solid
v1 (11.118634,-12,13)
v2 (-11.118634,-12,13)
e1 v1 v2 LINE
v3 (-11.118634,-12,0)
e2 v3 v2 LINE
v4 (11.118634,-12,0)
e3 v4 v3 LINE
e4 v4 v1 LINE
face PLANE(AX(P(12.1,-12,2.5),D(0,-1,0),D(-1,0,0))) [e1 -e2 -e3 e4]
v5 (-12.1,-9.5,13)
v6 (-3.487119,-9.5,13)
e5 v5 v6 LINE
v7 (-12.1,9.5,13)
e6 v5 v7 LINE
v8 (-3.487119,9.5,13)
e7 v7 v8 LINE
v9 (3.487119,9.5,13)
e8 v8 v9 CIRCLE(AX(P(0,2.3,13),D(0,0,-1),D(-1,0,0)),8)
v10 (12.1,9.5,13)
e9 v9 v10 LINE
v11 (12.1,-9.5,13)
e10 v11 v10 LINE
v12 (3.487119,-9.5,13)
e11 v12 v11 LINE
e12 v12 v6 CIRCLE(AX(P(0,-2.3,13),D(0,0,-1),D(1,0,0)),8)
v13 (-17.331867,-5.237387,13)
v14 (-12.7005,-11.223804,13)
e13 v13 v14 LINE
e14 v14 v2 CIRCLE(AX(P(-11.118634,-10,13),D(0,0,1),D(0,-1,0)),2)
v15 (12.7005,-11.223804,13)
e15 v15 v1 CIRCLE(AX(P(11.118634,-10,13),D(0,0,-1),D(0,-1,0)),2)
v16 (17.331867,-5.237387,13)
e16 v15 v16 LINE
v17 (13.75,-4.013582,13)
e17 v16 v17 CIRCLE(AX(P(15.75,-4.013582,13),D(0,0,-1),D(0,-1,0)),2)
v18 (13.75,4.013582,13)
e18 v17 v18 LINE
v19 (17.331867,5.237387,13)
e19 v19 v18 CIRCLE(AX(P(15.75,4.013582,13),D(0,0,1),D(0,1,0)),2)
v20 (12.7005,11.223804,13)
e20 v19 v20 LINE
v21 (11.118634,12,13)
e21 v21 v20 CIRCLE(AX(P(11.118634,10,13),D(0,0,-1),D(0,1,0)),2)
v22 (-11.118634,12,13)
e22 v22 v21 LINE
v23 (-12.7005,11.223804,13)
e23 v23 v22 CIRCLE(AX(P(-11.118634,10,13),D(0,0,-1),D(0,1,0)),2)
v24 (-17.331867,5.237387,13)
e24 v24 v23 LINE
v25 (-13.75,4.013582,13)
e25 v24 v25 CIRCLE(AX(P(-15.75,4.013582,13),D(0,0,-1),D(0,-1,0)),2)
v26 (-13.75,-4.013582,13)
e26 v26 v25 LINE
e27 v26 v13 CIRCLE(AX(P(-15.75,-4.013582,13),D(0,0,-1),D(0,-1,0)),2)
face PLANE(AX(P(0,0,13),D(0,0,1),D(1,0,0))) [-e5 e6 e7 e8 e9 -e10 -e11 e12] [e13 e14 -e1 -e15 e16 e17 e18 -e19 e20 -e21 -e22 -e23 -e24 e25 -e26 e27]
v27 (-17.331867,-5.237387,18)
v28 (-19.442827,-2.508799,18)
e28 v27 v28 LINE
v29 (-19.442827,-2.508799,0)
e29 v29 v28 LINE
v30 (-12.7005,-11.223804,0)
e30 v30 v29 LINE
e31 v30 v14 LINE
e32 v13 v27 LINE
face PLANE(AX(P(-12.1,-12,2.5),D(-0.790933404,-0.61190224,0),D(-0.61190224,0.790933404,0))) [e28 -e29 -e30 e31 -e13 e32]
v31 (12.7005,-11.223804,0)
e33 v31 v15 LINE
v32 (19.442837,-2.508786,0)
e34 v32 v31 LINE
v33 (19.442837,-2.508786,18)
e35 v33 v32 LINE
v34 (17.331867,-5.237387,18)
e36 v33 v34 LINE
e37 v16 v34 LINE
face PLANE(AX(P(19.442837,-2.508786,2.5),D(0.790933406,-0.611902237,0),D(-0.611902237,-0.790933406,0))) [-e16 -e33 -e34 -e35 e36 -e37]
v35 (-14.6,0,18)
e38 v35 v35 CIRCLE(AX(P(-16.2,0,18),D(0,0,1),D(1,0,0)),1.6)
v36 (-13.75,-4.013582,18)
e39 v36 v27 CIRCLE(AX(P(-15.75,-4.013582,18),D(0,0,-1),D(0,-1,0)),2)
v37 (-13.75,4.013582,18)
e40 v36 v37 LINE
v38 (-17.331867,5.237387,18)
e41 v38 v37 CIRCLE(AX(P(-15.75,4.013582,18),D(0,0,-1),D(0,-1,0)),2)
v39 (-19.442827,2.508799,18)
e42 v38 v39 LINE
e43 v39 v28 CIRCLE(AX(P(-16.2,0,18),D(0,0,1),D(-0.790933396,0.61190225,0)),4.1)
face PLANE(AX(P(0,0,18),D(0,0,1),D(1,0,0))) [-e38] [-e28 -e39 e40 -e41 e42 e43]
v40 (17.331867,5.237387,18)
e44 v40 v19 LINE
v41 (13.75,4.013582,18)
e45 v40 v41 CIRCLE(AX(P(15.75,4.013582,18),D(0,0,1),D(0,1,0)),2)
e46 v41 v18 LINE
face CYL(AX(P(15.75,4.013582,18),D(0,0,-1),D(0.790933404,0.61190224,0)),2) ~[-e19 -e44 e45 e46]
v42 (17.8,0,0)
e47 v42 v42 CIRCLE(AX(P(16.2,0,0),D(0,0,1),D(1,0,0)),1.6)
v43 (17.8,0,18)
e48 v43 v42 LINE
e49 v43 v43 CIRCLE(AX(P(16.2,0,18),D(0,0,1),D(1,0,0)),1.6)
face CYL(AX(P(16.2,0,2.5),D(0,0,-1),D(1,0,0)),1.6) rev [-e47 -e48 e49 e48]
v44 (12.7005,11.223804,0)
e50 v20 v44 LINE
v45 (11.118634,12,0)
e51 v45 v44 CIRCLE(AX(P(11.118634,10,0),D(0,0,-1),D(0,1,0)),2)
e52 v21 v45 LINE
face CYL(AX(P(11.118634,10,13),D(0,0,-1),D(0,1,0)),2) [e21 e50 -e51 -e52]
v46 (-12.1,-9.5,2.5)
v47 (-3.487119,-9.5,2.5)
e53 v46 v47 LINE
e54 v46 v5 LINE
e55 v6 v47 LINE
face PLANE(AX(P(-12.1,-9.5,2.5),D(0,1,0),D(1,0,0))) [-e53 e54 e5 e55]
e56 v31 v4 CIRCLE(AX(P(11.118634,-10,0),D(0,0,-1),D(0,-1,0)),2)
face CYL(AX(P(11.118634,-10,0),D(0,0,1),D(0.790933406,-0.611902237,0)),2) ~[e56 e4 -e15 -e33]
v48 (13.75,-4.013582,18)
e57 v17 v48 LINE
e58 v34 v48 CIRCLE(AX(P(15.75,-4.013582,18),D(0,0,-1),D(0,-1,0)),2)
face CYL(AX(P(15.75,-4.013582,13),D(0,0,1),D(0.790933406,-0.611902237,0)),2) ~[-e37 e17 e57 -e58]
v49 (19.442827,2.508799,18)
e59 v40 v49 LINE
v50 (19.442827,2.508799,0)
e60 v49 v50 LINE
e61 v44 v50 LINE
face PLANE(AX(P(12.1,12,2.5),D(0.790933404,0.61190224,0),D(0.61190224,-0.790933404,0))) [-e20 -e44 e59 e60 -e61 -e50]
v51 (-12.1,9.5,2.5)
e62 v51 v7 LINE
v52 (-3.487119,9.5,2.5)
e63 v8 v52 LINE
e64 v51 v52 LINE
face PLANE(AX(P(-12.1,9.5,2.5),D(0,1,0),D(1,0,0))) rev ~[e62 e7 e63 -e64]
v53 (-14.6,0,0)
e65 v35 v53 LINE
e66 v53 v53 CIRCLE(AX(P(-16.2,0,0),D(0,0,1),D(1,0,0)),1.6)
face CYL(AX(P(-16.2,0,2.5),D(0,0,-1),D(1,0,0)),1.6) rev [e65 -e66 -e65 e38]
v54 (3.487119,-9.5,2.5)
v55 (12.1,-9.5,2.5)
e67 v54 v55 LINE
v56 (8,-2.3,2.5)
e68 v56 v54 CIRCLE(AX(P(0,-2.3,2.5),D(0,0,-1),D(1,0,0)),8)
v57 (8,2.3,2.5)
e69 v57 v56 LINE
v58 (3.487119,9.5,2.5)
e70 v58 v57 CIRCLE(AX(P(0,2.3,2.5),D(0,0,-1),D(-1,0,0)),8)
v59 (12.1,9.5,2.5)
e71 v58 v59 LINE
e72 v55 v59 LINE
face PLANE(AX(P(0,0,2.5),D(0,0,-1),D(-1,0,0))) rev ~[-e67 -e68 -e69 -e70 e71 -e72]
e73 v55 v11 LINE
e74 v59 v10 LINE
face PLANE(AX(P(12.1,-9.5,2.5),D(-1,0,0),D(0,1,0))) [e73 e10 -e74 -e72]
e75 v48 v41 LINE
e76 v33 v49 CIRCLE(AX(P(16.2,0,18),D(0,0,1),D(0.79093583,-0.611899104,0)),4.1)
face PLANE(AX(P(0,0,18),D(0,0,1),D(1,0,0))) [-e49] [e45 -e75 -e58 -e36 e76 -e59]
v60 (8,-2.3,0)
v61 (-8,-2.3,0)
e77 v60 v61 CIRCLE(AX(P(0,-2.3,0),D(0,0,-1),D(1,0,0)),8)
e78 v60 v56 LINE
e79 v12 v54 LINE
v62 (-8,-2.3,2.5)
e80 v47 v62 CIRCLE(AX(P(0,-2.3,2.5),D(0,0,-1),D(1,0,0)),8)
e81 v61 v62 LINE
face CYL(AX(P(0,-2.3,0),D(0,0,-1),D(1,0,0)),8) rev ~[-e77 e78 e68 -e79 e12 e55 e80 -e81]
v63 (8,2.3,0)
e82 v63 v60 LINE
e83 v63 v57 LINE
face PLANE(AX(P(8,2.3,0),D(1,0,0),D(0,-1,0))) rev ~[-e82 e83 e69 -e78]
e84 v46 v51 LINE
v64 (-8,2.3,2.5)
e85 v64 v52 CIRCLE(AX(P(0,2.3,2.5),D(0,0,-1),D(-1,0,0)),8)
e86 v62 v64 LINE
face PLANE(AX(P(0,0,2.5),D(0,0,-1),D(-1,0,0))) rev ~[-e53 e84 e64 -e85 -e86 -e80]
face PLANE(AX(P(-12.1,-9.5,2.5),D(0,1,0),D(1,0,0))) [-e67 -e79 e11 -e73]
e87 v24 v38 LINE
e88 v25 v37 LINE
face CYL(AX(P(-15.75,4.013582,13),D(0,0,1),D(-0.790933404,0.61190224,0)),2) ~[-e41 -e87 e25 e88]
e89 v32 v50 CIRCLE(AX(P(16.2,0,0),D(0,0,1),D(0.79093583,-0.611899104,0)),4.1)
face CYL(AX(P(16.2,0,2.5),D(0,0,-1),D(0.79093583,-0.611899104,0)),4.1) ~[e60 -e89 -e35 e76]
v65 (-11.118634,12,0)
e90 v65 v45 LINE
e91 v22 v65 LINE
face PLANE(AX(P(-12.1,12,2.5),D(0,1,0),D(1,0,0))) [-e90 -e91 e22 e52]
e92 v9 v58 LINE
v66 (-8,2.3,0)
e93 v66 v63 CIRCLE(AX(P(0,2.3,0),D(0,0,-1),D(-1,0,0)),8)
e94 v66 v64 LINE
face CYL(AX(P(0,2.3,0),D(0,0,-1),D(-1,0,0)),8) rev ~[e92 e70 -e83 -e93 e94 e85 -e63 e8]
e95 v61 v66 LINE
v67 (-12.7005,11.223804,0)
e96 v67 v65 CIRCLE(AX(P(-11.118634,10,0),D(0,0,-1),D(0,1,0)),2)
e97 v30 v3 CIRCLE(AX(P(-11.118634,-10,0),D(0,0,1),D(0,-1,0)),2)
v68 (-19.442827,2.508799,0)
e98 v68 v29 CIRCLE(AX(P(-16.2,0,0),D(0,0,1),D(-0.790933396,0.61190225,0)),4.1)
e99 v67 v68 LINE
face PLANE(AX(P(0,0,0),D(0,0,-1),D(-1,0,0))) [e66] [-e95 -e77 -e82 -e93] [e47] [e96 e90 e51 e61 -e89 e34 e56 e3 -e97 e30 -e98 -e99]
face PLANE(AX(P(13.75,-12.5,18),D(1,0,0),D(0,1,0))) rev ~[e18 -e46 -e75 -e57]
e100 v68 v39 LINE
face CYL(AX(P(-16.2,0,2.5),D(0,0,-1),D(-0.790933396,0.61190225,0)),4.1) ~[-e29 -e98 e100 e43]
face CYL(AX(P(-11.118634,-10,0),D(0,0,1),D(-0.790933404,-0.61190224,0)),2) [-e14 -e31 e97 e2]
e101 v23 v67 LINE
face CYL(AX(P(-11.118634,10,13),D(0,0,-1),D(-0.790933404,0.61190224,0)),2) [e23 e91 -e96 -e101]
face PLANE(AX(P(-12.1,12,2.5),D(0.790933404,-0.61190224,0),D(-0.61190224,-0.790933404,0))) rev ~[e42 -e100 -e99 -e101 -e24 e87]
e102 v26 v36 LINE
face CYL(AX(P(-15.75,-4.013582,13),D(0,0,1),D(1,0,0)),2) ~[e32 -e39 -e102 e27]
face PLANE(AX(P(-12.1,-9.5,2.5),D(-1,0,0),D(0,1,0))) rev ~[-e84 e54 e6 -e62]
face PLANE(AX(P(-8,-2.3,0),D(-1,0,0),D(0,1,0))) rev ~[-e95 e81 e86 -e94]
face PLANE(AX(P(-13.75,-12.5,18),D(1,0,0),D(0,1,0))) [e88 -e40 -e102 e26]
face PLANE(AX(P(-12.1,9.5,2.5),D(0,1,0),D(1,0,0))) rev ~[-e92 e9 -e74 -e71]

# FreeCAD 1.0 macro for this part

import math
import FreeCAD as App
import Part
import Sketcher
from FreeCAD import Vector


def edges_at(feature, points):
    """Names of the edges that pass closest to the given points."""
    edges = feature.Shape.Edges
    near = lambda p: min(range(len(edges)), key=lambda i: edges[i].distToShape(Part.Vertex(*p))[0])
    return sorted({f"Edge{near(p) + 1}" for p in points})


def add_polygon(sketch, points):
    """Adds a closed chain of lines whose ends are joined by coincident constraints."""
    first, n = sketch.GeometryCount, len(points)
    for a, b in zip(points, points[1:] + points[:1]):
        sketch.addGeometry(Part.LineSegment(App.Vector(*a, 0), App.Vector(*b, 0)), False)
    for i in range(n):
        sketch.addConstraint(Sketcher.Constraint("Coincident", first + i, 2, first + (i + 1) % n, 1))

doc = App.newDocument("Part")
body = doc.addObject("PartDesign::Body", "Body")

sketch1 = body.newObject("Sketcher::SketchObject", "Sketch")
sketch1.AttachmentSupport = (doc.getObject("XY_Plane"), [""])
sketch1.MapMode = "FlatFace"
sketch1.addGeometry(Part.LineSegment(Vector(12.1, 12, 0), Vector(-12.1, 12, 0)), False)
sketch1.addGeometry(Part.LineSegment(Vector(-12.1, 12, 0), Vector(-19.442827, 2.508799, 0)), False)
sketch1.addGeometry(Part.ArcOfCircle(Part.Circle(Vector(-16.2, 0, 0), Vector(0, 0, 1), 4.1), math.radians(142.272825), math.radians(217.727175)), False)
sketch1.addGeometry(Part.LineSegment(Vector(-19.442827, -2.508799, 0), Vector(-12.1, -12, 0)), False)
sketch1.addGeometry(Part.LineSegment(Vector(-12.1, -12, 0), Vector(12.1, -12, 0)), False)
sketch1.addGeometry(Part.LineSegment(Vector(12.1, -12, 0), Vector(19.442837, -2.508786, 0)), False)
sketch1.addGeometry(Part.ArcOfCircle(Part.Circle(Vector(16.2, 0, 0), Vector(0, 0, 1), 4.1), math.radians(-37.726948), math.radians(37.727176)), False)
sketch1.addGeometry(Part.LineSegment(Vector(19.442827, 2.508799, 0), Vector(12.1, 12, 0)), False)
sketch1.addGeometry(Part.Circle(Vector(16.2, 0, 0), Vector(0, 0, 1), 1.6), False)
sketch1.addGeometry(Part.Circle(Vector(-16.2, 0, 0), Vector(0, 0, 1), 1.6), False)
sketch1.addConstraint(Sketcher.Constraint("Coincident", 0, 2, 1, 1))
sketch1.addConstraint(Sketcher.Constraint("Tangent", 1, 2, 2, 1))
sketch1.addConstraint(Sketcher.Constraint("Tangent", 2, 2, 3, 1))
sketch1.addConstraint(Sketcher.Constraint("Coincident", 3, 2, 4, 1))
sketch1.addConstraint(Sketcher.Constraint("Coincident", 4, 2, 5, 1))
sketch1.addConstraint(Sketcher.Constraint("Coincident", 5, 2, 6, 1))
sketch1.addConstraint(Sketcher.Constraint("Tangent", 6, 2, 7, 1))
sketch1.addConstraint(Sketcher.Constraint("Coincident", 7, 2, 0, 1))
sketch1.addConstraint(Sketcher.Constraint("Horizontal", 0))
sketch1.addConstraint(Sketcher.Constraint("Horizontal", 4))
sketch1.addConstraint(Sketcher.Constraint("Coincident", 8, 3, 6, 3))
sketch1.addConstraint(Sketcher.Constraint("Coincident", 9, 3, 2, 3))
sketch1.addConstraint(Sketcher.Constraint("Equal", 2, 6))
sketch1.addConstraint(Sketcher.Constraint("Equal", 8, 9))
sketch1.addConstraint(Sketcher.Constraint("Symmetric", 2, 3, 6, 3, -1, 1))
sketch1.addConstraint(Sketcher.Constraint("Symmetric", 0, 2, 4, 2, -1, 1))
sketch1.addConstraint(Sketcher.Constraint("Symmetric", 1, 2, 6, 2, -2))
sketch1.addConstraint(Sketcher.Constraint("Parallel", 3, 7))
sketch1.addConstraint(Sketcher.Constraint("Diameter", 8, 3.2))
sketch1.addConstraint(Sketcher.Constraint("Radius", 2, 4.1))
sketch1.addConstraint(Sketcher.Constraint("Distance", 1, 12.0))
sketch1.addConstraint(Sketcher.Constraint("DistanceX", 0, 2, 0, 1, 24.2))
sketch1.addConstraint(Sketcher.Constraint("DistanceY", -1, 1, 0, 2, 12.0))
sketch1.addConstraint(Sketcher.Constraint("Distance", 5, 12.000017))
pad1 = body.newObject("PartDesign::Pad", "Pad")
pad1.Profile = sketch1
pad1.Length = 2.5

sketch2 = body.newObject("Sketcher::SketchObject", "Sketch001")
sketch2.AttachmentSupport = (doc.getObject("XY_Plane"), [""])
sketch2.MapMode = "FlatFace"
sketch2.AttachmentOffset = App.Placement(Vector(0, 0, 2.5), App.Rotation())
sketch2.addGeometry(Part.LineSegment(Vector(-12.1, 12, 0), Vector(-19.442827, 2.508799, 0)), False)
sketch2.addGeometry(Part.ArcOfCircle(Part.Circle(Vector(-16.2, 0, 0), Vector(0, 0, 1), 4.1), math.radians(142.272825), math.radians(217.727175)), False)
sketch2.addGeometry(Part.LineSegment(Vector(-19.442827, -2.508799, 0), Vector(-12.1, -12, 0)), False)
sketch2.addGeometry(Part.LineSegment(Vector(-12.1, -12, 0), Vector(12.1, -12, 0)), False)
sketch2.addGeometry(Part.LineSegment(Vector(12.1, -12, 0), Vector(19.442837, -2.508786, 0)), False)
sketch2.addGeometry(Part.ArcOfCircle(Part.Circle(Vector(16.2, 0, 0), Vector(0, 0, 1), 4.1), math.radians(-37.726948), math.radians(37.727176)), False)
sketch2.addGeometry(Part.LineSegment(Vector(19.442827, 2.508799, 0), Vector(12.1, 12, 0)), False)
sketch2.addGeometry(Part.LineSegment(Vector(12.1, 12, 0), Vector(-12.1, 12, 0)), False)
sketch2.addGeometry(Part.Circle(Vector(-16.2, 0, 0), Vector(0, 0, 1), 1.6), False)
add_polygon(sketch2, [(12.1, -9.5), (-12.1, -9.5), (-12.1, 9.5), (12.1, 9.5)])
sketch2.addGeometry(Part.Circle(Vector(16.2, 0, 0), Vector(0, 0, 1), 1.6), False)
sketch2.addConstraint(Sketcher.Constraint("Tangent", 0, 2, 1, 1))
sketch2.addConstraint(Sketcher.Constraint("Tangent", 1, 2, 2, 1))
sketch2.addConstraint(Sketcher.Constraint("Coincident", 2, 2, 3, 1))
sketch2.addConstraint(Sketcher.Constraint("Coincident", 3, 2, 4, 1))
sketch2.addConstraint(Sketcher.Constraint("Coincident", 4, 2, 5, 1))
sketch2.addConstraint(Sketcher.Constraint("Tangent", 5, 2, 6, 1))
sketch2.addConstraint(Sketcher.Constraint("Coincident", 6, 2, 7, 1))
sketch2.addConstraint(Sketcher.Constraint("Coincident", 7, 2, 0, 1))
sketch2.addConstraint(Sketcher.Constraint("Horizontal", 3))
sketch2.addConstraint(Sketcher.Constraint("Horizontal", 7))
sketch2.addConstraint(Sketcher.Constraint("Horizontal", 9))
sketch2.addConstraint(Sketcher.Constraint("Vertical", 10))
sketch2.addConstraint(Sketcher.Constraint("Horizontal", 11))
sketch2.addConstraint(Sketcher.Constraint("Vertical", 12))
sketch2.addConstraint(Sketcher.Constraint("Coincident", 8, 3, 1, 3))
sketch2.addConstraint(Sketcher.Constraint("Coincident", 13, 3, 5, 3))
sketch2.addConstraint(Sketcher.Constraint("Equal", 1, 5))
sketch2.addConstraint(Sketcher.Constraint("Equal", 8, 13))
sketch2.addConstraint(Sketcher.Constraint("Symmetric", 1, 3, 5, 3, -1, 1))
sketch2.addConstraint(Sketcher.Constraint("Symmetric", 2, 2, 6, 2, -1, 1))
sketch2.addConstraint(Sketcher.Constraint("Symmetric", 9, 2, 11, 2, -1, 1))
sketch2.addConstraint(Sketcher.Constraint("Symmetric", 0, 2, 5, 2, -2))
sketch2.addConstraint(Sketcher.Constraint("Parallel", 0, 4))
sketch2.addConstraint(Sketcher.Constraint("Vertical", 7, 2, 9, 2))
sketch2.addConstraint(Sketcher.Constraint("Diameter", 8, 3.2))
sketch2.addConstraint(Sketcher.Constraint("Radius", 1, 4.1))
sketch2.addConstraint(Sketcher.Constraint("DistanceY", 10, 1, 10, 2, 19.0))
sketch2.addConstraint(Sketcher.Constraint("Distance", 0, 12.0))
sketch2.addConstraint(Sketcher.Constraint("DistanceX", 3, 1, 3, 2, 24.2))
sketch2.addConstraint(Sketcher.Constraint("DistanceY", 2, 2, -1, 1, 12.0))
sketch2.addConstraint(Sketcher.Constraint("Distance", 4, 12.000017))
pad2 = body.newObject("PartDesign::Pad", "Pad001")
pad2.Profile = sketch2
pad2.Length = 15.5

sketch3 = body.newObject("Sketcher::SketchObject", "Sketch002")
sketch3.AttachmentSupport = (doc.getObject("XY_Plane"), [""])
sketch3.MapMode = "FlatFace"
sketch3.AttachmentOffset = App.Placement(Vector(0, 0, 18), App.Rotation())
add_polygon(sketch3, [(-13.75, 12.5), (-13.75, -12.5), (13.75, -12.5), (13.75, 12.5)])
sketch3.addConstraint(Sketcher.Constraint("Vertical", 0))
sketch3.addConstraint(Sketcher.Constraint("Horizontal", 1))
sketch3.addConstraint(Sketcher.Constraint("Vertical", 2))
sketch3.addConstraint(Sketcher.Constraint("Horizontal", 3))
sketch3.addConstraint(Sketcher.Constraint("Symmetric", 0, 2, 2, 2, -1, 1))
sketch3.addConstraint(Sketcher.Constraint("DistanceY", 0, 2, 0, 1, 25.0))
sketch3.addConstraint(Sketcher.Constraint("DistanceX", 1, 1, 1, 2, 27.5))
pocket1 = body.newObject("PartDesign::Pocket", "Pocket")
pocket1.Profile = sketch3
pocket1.Length = 5

sketch4 = body.newObject("Sketcher::SketchObject", "Sketch003")
sketch4.AttachmentSupport = (doc.getObject("XY_Plane"), [""])
sketch4.MapMode = "FlatFace"
sketch4.addGeometry(Part.ArcOfCircle(Part.Circle(Vector(0, -2.3, 0), Vector(0, 0, 1), 8), math.radians(180), math.radians(360)), False)
sketch4.addGeometry(Part.LineSegment(Vector(-8, -2.3, 0), Vector(-8, 2.3, 0)), False)
sketch4.addGeometry(Part.ArcOfCircle(Part.Circle(Vector(0, 2.3, 0), Vector(0, 0, 1), 8), math.radians(0), math.radians(180)), False)
sketch4.addGeometry(Part.LineSegment(Vector(8, 2.3, 0), Vector(8, -2.3, 0)), False)
sketch4.addConstraint(Sketcher.Constraint("Tangent", 0, 1, 1, 1))
sketch4.addConstraint(Sketcher.Constraint("Tangent", 1, 2, 2, 2))
sketch4.addConstraint(Sketcher.Constraint("Tangent", 2, 1, 3, 1))
sketch4.addConstraint(Sketcher.Constraint("Tangent", 3, 2, 0, 2))
sketch4.addConstraint(Sketcher.Constraint("Vertical", 1))
sketch4.addConstraint(Sketcher.Constraint("Vertical", 3))
sketch4.addConstraint(Sketcher.Constraint("Symmetric", 0, 3, 2, 3, -1, 1))
sketch4.addConstraint(Sketcher.Constraint("Radius", 0, 8.0))
sketch4.addConstraint(Sketcher.Constraint("DistanceY", 1, 1, 1, 2, 4.6))
pocket2 = body.newObject("PartDesign::Pocket", "Pocket001")
pocket2.Profile = sketch4
pocket2.Type = "ThroughAll"
pocket2.Reversed = True
doc.recompute()

fillet = body.newObject("PartDesign::Fillet", "Fillet")
fillet.Base = (pocket2, edges_at(pocket2, [
    (-12.1, 12, 6.5),
    (12.1, 12, 6.5),
    (12.1, -12, 6.5),
    (-12.1, -12, 6.5),
    (-13.75, -9.867, 15.5),
    (13.75, -9.867, 15.5),
    (13.75, 9.867, 15.5),
    (-13.75, 9.867, 15.5),
]))
fillet.Radius = 2

doc.recompute()
